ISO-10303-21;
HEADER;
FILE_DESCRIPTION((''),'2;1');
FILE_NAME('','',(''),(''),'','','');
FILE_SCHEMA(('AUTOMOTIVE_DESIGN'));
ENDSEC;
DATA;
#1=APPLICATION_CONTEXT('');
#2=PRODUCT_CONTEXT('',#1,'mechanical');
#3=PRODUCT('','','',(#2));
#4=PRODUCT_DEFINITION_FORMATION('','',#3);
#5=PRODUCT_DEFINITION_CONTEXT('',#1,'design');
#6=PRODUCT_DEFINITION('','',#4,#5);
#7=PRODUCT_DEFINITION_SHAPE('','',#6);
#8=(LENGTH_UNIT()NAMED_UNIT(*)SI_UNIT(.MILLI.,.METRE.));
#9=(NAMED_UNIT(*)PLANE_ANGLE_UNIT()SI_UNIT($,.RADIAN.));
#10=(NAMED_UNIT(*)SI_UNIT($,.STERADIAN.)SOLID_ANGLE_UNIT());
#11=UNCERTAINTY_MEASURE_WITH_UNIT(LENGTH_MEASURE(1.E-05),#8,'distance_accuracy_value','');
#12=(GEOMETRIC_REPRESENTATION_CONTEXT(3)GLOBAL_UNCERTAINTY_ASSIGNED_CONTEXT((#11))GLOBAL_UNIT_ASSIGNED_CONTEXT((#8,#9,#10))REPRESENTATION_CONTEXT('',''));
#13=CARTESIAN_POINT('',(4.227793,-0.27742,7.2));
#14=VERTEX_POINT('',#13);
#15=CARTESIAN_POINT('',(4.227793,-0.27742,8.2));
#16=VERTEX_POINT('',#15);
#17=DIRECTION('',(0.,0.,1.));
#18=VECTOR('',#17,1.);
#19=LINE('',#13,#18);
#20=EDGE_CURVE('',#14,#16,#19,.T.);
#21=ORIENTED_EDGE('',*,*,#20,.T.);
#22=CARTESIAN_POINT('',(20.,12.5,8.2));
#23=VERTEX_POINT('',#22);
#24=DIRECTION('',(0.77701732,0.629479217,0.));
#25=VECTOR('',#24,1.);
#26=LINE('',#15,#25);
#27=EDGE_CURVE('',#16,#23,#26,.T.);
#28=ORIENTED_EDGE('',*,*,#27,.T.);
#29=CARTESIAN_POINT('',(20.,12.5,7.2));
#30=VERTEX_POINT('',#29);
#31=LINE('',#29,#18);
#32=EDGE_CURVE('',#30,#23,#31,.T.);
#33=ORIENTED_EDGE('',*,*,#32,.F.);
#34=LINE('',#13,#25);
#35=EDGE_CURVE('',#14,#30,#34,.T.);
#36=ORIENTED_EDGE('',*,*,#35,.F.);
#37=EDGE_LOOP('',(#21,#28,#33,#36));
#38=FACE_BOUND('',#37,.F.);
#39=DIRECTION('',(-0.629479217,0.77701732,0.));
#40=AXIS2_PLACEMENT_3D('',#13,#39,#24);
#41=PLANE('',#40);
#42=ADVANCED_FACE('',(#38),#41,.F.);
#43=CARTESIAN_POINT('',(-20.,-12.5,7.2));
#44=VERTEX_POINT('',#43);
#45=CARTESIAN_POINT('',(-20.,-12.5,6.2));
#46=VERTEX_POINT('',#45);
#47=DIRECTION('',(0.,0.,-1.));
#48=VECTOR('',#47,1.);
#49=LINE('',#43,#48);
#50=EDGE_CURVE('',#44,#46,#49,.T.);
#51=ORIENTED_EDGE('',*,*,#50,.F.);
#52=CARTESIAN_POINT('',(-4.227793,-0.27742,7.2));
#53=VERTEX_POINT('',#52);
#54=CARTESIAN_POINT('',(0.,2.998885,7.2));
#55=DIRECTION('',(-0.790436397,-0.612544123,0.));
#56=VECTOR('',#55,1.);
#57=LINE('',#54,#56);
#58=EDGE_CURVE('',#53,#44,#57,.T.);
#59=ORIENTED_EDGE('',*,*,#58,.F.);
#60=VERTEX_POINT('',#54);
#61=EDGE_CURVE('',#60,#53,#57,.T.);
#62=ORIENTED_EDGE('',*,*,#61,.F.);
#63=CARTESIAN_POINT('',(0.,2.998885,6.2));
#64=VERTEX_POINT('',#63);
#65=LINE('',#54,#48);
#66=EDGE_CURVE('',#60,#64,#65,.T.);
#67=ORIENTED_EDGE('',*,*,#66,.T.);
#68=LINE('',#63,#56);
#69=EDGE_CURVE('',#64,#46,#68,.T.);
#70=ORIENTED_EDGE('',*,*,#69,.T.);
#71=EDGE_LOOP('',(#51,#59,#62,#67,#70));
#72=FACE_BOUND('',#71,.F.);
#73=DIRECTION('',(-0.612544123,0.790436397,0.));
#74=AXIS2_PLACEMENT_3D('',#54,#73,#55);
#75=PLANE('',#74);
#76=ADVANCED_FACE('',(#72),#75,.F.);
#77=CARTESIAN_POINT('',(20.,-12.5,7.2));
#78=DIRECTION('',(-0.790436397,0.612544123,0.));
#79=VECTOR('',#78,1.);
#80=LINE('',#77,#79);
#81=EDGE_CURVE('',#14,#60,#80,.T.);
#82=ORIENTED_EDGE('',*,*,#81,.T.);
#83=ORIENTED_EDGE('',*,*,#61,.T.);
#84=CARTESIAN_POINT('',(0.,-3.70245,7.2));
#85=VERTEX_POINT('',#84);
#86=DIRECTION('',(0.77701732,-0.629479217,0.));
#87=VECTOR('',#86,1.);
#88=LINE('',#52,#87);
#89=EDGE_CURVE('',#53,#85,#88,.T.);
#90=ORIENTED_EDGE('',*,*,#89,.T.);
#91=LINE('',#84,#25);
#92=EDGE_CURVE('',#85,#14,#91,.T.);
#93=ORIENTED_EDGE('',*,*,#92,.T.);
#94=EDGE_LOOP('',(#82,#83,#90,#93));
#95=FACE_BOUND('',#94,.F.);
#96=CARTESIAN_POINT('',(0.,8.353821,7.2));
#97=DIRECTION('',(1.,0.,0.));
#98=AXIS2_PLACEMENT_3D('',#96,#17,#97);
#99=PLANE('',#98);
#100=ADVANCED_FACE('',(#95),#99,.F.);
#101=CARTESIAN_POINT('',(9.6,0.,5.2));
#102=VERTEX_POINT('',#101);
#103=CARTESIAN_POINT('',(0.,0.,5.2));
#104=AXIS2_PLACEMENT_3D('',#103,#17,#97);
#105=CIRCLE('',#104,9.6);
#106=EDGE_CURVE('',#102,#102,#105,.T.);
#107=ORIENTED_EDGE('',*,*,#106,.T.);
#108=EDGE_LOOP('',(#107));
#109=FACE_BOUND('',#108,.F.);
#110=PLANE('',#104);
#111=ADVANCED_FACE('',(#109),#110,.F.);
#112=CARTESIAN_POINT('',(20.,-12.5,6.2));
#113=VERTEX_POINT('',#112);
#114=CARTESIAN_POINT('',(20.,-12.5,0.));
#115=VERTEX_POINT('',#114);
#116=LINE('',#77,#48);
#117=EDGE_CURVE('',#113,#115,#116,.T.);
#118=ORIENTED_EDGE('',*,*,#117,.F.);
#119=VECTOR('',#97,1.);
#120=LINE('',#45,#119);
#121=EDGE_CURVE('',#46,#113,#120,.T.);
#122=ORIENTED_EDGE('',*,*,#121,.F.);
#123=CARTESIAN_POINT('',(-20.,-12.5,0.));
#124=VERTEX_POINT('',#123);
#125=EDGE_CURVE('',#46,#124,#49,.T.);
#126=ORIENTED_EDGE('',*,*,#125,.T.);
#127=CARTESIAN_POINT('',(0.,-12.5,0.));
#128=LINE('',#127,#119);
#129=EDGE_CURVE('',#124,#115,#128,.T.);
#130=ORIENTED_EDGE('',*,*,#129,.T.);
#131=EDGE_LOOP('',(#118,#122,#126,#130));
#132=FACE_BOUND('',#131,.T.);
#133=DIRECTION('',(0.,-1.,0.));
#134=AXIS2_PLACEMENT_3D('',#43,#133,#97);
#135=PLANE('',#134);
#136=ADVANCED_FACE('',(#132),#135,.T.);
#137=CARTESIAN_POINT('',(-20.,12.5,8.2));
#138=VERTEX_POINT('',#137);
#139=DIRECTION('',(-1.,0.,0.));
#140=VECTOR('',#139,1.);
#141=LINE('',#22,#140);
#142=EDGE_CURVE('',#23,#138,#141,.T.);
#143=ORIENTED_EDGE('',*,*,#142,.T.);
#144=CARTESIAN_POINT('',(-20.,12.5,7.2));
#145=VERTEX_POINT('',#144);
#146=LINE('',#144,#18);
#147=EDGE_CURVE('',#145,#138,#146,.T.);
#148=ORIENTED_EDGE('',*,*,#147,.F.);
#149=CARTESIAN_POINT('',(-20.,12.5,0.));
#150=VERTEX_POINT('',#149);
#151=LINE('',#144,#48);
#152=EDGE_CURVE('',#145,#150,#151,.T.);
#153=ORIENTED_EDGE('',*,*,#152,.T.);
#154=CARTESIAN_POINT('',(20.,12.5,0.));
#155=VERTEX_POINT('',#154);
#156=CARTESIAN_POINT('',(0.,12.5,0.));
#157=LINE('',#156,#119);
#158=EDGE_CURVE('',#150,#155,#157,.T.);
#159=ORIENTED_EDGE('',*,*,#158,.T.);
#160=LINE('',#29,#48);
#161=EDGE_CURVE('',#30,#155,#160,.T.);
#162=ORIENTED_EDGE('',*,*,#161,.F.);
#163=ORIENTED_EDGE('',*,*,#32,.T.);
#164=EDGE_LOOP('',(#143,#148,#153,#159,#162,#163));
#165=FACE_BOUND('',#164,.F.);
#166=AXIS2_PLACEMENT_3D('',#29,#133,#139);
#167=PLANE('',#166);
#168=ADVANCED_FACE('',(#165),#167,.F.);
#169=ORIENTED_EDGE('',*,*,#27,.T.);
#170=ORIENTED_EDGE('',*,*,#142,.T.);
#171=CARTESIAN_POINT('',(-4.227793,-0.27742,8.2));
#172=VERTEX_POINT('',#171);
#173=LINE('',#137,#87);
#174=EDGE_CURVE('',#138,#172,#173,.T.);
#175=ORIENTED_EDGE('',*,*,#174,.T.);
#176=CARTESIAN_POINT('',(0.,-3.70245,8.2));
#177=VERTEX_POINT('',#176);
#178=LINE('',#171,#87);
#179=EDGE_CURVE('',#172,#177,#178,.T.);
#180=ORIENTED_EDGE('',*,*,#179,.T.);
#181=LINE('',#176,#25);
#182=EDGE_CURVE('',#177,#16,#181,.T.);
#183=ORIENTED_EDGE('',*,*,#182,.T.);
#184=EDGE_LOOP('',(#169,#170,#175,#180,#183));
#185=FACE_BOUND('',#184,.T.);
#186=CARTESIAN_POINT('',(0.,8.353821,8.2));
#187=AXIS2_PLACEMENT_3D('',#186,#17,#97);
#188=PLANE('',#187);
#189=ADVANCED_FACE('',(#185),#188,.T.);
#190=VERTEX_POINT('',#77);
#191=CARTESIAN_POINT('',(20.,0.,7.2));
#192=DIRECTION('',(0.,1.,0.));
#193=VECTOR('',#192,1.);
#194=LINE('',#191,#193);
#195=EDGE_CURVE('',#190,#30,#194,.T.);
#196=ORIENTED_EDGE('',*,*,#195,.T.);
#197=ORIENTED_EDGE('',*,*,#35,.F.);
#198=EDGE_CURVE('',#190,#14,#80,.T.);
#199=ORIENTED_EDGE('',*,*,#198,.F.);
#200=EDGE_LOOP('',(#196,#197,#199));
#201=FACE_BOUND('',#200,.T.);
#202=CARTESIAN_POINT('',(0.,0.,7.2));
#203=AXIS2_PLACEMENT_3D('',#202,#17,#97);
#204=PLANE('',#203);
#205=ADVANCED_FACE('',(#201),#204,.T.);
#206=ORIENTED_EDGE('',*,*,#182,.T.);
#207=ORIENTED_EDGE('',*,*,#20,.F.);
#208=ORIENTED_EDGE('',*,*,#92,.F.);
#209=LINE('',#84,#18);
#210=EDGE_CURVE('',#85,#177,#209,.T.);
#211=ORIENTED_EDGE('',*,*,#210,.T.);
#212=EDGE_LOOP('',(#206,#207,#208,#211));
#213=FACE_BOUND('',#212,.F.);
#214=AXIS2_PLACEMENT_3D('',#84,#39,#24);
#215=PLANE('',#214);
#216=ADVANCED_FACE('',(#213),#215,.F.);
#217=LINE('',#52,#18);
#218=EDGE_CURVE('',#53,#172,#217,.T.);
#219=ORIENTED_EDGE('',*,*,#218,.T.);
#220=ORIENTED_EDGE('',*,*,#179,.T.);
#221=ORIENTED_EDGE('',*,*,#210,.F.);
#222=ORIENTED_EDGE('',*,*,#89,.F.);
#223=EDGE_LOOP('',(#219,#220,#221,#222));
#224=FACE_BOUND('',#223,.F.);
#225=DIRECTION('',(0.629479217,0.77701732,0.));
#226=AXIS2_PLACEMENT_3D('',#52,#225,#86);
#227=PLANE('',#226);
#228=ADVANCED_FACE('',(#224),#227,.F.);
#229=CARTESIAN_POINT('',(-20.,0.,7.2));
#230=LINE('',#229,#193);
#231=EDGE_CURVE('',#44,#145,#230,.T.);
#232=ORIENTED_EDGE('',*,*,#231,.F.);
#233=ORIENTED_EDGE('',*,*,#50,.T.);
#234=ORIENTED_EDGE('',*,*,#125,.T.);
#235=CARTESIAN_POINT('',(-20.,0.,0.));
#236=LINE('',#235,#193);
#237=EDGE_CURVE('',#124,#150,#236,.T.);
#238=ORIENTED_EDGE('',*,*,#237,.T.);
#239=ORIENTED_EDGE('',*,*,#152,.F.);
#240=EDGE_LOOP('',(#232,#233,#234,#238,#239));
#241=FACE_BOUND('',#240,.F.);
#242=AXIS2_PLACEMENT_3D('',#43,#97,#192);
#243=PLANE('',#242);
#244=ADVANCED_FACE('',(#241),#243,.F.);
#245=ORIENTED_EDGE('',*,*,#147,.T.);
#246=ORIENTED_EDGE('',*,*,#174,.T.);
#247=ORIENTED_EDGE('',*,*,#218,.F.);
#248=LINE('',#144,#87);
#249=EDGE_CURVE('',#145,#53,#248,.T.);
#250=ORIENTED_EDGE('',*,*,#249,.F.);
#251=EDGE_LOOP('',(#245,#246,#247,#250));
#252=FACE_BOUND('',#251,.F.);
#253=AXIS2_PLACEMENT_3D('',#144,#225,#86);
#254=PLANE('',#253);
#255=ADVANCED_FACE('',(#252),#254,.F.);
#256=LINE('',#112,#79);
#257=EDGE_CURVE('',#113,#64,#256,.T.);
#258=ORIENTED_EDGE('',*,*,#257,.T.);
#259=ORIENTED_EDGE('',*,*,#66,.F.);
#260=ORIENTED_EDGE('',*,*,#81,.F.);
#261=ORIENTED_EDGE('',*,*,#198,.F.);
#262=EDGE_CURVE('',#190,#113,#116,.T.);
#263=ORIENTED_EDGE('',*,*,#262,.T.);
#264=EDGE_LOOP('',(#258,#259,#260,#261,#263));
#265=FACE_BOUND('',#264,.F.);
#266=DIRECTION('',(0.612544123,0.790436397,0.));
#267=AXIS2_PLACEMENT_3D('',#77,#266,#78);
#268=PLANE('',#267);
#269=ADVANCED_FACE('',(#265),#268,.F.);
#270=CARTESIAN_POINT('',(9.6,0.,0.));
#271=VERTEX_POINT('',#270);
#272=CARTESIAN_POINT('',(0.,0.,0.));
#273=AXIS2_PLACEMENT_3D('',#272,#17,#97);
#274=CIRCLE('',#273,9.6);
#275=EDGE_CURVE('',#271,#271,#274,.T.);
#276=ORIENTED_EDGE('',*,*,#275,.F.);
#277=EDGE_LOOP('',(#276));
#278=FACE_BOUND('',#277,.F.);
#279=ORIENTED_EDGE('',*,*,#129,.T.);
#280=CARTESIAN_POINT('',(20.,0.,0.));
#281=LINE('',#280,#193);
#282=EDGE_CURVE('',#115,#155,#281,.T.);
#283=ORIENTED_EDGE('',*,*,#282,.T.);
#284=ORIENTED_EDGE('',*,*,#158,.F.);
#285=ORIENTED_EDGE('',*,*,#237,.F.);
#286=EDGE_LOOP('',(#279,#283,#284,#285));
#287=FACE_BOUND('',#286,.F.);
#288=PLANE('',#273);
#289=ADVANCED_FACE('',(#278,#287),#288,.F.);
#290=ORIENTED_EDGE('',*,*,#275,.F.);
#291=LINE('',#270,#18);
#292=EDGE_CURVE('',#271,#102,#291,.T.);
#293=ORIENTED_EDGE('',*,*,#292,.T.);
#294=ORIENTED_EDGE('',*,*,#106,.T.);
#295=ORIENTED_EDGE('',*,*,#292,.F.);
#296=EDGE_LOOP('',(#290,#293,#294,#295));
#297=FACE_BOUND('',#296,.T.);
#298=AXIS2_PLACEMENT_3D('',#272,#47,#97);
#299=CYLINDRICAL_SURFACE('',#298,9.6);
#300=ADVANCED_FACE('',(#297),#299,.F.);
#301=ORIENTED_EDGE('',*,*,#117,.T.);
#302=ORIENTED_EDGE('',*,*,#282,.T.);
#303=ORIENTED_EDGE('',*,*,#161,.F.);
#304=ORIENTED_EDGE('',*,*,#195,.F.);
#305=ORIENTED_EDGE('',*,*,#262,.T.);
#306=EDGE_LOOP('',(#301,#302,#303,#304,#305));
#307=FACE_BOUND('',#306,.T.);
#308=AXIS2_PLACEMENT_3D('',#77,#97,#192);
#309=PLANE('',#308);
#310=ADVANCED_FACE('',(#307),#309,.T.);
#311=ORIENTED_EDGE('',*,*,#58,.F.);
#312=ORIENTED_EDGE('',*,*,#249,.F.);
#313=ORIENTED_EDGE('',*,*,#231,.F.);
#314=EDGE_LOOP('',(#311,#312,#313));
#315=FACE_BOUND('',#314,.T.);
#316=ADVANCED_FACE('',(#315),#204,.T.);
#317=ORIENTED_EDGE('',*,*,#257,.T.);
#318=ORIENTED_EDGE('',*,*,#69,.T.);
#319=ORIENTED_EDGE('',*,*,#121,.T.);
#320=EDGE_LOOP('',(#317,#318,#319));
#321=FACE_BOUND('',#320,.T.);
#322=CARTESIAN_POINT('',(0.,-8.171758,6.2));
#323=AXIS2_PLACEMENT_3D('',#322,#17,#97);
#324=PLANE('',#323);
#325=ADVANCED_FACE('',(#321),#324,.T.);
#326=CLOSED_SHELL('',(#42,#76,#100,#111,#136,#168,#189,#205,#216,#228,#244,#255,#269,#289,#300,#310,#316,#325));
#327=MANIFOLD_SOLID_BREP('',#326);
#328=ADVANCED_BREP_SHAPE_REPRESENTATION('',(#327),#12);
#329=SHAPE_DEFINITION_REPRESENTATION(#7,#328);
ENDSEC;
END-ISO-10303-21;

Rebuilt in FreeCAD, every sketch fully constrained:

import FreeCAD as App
import Part
import Sketcher

V = App.Vector

doc = App.newDocument("Part")
params = doc.addObject("Spreadsheet::Sheet", "Params")
for row, (alias, value) in enumerate([
    ("sketch1_diameter", "23.2 mm"),
    ("sketch1_diameter2", "19.2 mm"),
    ("pad1_length", "5.2 mm"),
    ("sketch2_diameter", "23.2 mm"),
    ("pad2_length", "2 mm"),
    ("sketch3_diameter", "23.2 mm"),
    ("sketch3_width", "40 mm"),
    ("sketch3_height", "25 mm"),
    ("pad3_length", "7.2 mm"),
    ("sketch4_width", "40 mm"),
    ("pocket1_length", "1 mm"),
    ("sketch5_width", "40 mm"),
    ("pad4_length", "1 mm"),
], start=1):
    params.set(f"A{row}", alias)
    params.set(f"B{row}", "=" + value)
    params.setAlias(f"B{row}", alias)

body = doc.addObject("PartDesign::Body", "Body")

# Sketch on XY plane
sketch1 = body.newObject("Sketcher::SketchObject", "Sketch")
sketch1.AttachmentSupport = (doc.getObject("XY_Plane"), [""])
sketch1.MapMode = "FlatFace"
sketch1.addGeometry(Part.Circle(V(0, 0, 0), V(0, 0, 1), 12), False)
sketch1.addGeometry(Part.Circle(V(0, 0, 0), V(0, 0, 1), 10), False)
sketch1.addConstraint(Sketcher.Constraint("Coincident", 0, 3, -1, 1))
sketch1.addConstraint(Sketcher.Constraint("Coincident", 1, 3, -1, 1))
sketch1.addConstraint(Sketcher.Constraint("Diameter", 0, 23.2))
sketch1.addConstraint(Sketcher.Constraint("Diameter", 1, 19.2))
sketch1.setExpression("Constraints[2]", "Params.sketch1_diameter")
sketch1.setExpression("Constraints[3]", "Params.sketch1_diameter2")
pad1 = body.newObject("PartDesign::Pad", "Pad")
pad1.Profile = sketch1
pad1.setExpression("Length", "Params.pad1_length")

# Sketch on XY plane
sketch2 = body.newObject("Sketcher::SketchObject", "Sketch001")
sketch2.AttachmentSupport = (doc.getObject("XY_Plane"), [""])
sketch2.MapMode = "FlatFace"
sketch2.AttachmentOffset = App.Placement(V(0, 0, 5.2), App.Rotation())
sketch2.addGeometry(Part.Circle(V(0, 0, 0), V(0, 0, 1), 12), False)
sketch2.addConstraint(Sketcher.Constraint("Coincident", 0, 3, -1, 1))
sketch2.addConstraint(Sketcher.Constraint("Diameter", 0, 23.2))
sketch2.setExpression("Constraints[1]", "Params.sketch2_diameter")
pad2 = body.newObject("PartDesign::Pad", "Pad001")
pad2.Profile = sketch2
pad2.setExpression("Length", "Params.pad2_length")

# Sketch on XY plane
sketch3 = body.newObject("Sketcher::SketchObject", "Sketch002")
sketch3.AttachmentSupport = (doc.getObject("XY_Plane"), [""])
sketch3.MapMode = "FlatFace"
sketch3.AttachmentOffset = App.Placement(V(0, 0, 7.2), App.Rotation())
sketch3.addGeometry(Part.LineSegment(V(-20, 12, 0), V(-20, -12, 0)), False)
sketch3.addGeometry(Part.LineSegment(V(-20, -12, 0), V(20, -12, 0)), False)
sketch3.addGeometry(Part.LineSegment(V(20, -12, 0), V(20, 12, 0)), False)
sketch3.addGeometry(Part.LineSegment(V(20, 12, 0), V(-20, 12, 0)), False)
sketch3.addGeometry(Part.Circle(V(0, 0, 0), V(0, 0, 1), 12), False)
sketch3.addConstraint(Sketcher.Constraint("Coincident", 0, 2, 1, 1))
sketch3.addConstraint(Sketcher.Constraint("Coincident", 1, 2, 2, 1))
sketch3.addConstraint(Sketcher.Constraint("Coincident", 2, 2, 3, 1))
sketch3.addConstraint(Sketcher.Constraint("Coincident", 3, 2, 0, 1))
sketch3.addConstraint(Sketcher.Constraint("Vertical", 0))
sketch3.addConstraint(Sketcher.Constraint("Horizontal", 1))
sketch3.addConstraint(Sketcher.Constraint("Vertical", 2))
sketch3.addConstraint(Sketcher.Constraint("Horizontal", 3))
sketch3.addConstraint(Sketcher.Constraint("Coincident", 4, 3, -1, 1))
sketch3.addConstraint(Sketcher.Constraint("Symmetric", 0, 2, 2, 2, -1, 1))
sketch3.addConstraint(Sketcher.Constraint("Diameter", 4, 23.2))
sketch3.addConstraint(Sketcher.Constraint("DistanceX", 1, 1, 1, 2, 40.0))
sketch3.addConstraint(Sketcher.Constraint("DistanceY", 0, 2, 0, 1, 25.0))
sketch3.setExpression("Constraints[10]", "Params.sketch3_diameter")
sketch3.setExpression("Constraints[11]", "Params.sketch3_width")
sketch3.setExpression("Constraints[12]", "Params.sketch3_height")
pad3 = body.newObject("PartDesign::Pad", "Pad002")
pad3.Profile = sketch3
pad3.setExpression("Length", "Params.pad3_length")
pad3.Reversed = True

# Sketch on XY plane
sketch4 = body.newObject("Sketcher::SketchObject", "Sketch003")
sketch4.AttachmentSupport = (doc.getObject("XY_Plane"), [""])
sketch4.MapMode = "FlatFace"
sketch4.AttachmentOffset = App.Placement(V(0, 0, 7.2), App.Rotation())
sketch4.addGeometry(Part.LineSegment(V(0, 3, 0), V(-20, -12, 0)), False)
sketch4.addGeometry(Part.LineSegment(V(-20, -12, 0), V(20, -12, 0)), False)
sketch4.addGeometry(Part.LineSegment(V(20, -12, 0), V(0, 3, 0)), False)
sketch4.addConstraint(Sketcher.Constraint("Coincident", 0, 2, 1, 1))
sketch4.addConstraint(Sketcher.Constraint("Coincident", 1, 2, 2, 1))
sketch4.addConstraint(Sketcher.Constraint("Coincident", 2, 2, 0, 1))
sketch4.addConstraint(Sketcher.Constraint("Horizontal", 1))
sketch4.addConstraint(Sketcher.Constraint("PointOnObject", 2, 2, -2))
sketch4.addConstraint(Sketcher.Constraint("Equal", 0, 2))
sketch4.addConstraint(Sketcher.Constraint("DistanceX", 1, 1, 1, 2, 40.0))
sketch4.addConstraint(Sketcher.Constraint("DistanceY", 0, 2, -1, 1, 12.5))
sketch4.addConstraint(Sketcher.Constraint("Distance", 0, 25.302479))
sketch4.setExpression("Constraints[6]", "Params.sketch4_width")
pocket1 = body.newObject("PartDesign::Pocket", "Pocket")
pocket1.Profile = sketch4
pocket1.setExpression("Length", "Params.pocket1_length")

# Sketch on XY plane
sketch5 = body.newObject("Sketcher::SketchObject", "Sketch004")
sketch5.AttachmentSupport = (doc.getObject("XY_Plane"), [""])
sketch5.MapMode = "FlatFace"
sketch5.AttachmentOffset = App.Placement(V(0, 0, 7.2), App.Rotation())
sketch5.addGeometry(Part.LineSegment(V(20, 12, 0), V(-20, 12, 0)), False)
sketch5.addGeometry(Part.LineSegment(V(-20, 12, 0), V(-4, 0, 0)), False)
sketch5.addGeometry(Part.LineSegment(V(-4, 0, 0), V(0, -4, 0)), False)
sketch5.addGeometry(Part.LineSegment(V(0, -4, 0), V(4, 0, 0)), False)
sketch5.addGeometry(Part.LineSegment(V(4, 0, 0), V(20, 12, 0)), False)
sketch5.addConstraint(Sketcher.Constraint("Coincident", 0, 2, 1, 1))
sketch5.addConstraint(Sketcher.Constraint("Coincident", 1, 2, 2, 1))
sketch5.addConstraint(Sketcher.Constraint("Coincident", 2, 2, 3, 1))
sketch5.addConstraint(Sketcher.Constraint("Coincident", 3, 2, 4, 1))
sketch5.addConstraint(Sketcher.Constraint("Coincident", 4, 2, 0, 1))
sketch5.addConstraint(Sketcher.Constraint("Horizontal", 0))
sketch5.addConstraint(Sketcher.Constraint("Symmetric", 1, 2, 3, 2, -2))
sketch5.addConstraint(Sketcher.Constraint("PointOnObject", 2, 2, -2))
sketch5.addConstraint(Sketcher.Constraint("Parallel", 1, 2))
sketch5.addConstraint(Sketcher.Constraint("Parallel", 3, 4))
sketch5.addConstraint(Sketcher.Constraint("DistanceX", 0, 2, 0, 1, 40.0))
sketch5.addConstraint(Sketcher.Constraint("DistanceY", -1, 1, 0, 2, 12.5))
sketch5.addConstraint(Sketcher.Constraint("DistanceY", 1, 2, -1, 1, 0.27742))
sketch5.addConstraint(Sketcher.Constraint("DistanceY", 2, 2, -1, 1, 3.70245))
sketch5.setExpression("Constraints[10]", "Params.sketch5_width")
pad4 = body.newObject("PartDesign::Pad", "Pad003")
pad4.Profile = sketch5
pad4.setExpression("Length", "Params.pad4_length")

doc.recompute()
